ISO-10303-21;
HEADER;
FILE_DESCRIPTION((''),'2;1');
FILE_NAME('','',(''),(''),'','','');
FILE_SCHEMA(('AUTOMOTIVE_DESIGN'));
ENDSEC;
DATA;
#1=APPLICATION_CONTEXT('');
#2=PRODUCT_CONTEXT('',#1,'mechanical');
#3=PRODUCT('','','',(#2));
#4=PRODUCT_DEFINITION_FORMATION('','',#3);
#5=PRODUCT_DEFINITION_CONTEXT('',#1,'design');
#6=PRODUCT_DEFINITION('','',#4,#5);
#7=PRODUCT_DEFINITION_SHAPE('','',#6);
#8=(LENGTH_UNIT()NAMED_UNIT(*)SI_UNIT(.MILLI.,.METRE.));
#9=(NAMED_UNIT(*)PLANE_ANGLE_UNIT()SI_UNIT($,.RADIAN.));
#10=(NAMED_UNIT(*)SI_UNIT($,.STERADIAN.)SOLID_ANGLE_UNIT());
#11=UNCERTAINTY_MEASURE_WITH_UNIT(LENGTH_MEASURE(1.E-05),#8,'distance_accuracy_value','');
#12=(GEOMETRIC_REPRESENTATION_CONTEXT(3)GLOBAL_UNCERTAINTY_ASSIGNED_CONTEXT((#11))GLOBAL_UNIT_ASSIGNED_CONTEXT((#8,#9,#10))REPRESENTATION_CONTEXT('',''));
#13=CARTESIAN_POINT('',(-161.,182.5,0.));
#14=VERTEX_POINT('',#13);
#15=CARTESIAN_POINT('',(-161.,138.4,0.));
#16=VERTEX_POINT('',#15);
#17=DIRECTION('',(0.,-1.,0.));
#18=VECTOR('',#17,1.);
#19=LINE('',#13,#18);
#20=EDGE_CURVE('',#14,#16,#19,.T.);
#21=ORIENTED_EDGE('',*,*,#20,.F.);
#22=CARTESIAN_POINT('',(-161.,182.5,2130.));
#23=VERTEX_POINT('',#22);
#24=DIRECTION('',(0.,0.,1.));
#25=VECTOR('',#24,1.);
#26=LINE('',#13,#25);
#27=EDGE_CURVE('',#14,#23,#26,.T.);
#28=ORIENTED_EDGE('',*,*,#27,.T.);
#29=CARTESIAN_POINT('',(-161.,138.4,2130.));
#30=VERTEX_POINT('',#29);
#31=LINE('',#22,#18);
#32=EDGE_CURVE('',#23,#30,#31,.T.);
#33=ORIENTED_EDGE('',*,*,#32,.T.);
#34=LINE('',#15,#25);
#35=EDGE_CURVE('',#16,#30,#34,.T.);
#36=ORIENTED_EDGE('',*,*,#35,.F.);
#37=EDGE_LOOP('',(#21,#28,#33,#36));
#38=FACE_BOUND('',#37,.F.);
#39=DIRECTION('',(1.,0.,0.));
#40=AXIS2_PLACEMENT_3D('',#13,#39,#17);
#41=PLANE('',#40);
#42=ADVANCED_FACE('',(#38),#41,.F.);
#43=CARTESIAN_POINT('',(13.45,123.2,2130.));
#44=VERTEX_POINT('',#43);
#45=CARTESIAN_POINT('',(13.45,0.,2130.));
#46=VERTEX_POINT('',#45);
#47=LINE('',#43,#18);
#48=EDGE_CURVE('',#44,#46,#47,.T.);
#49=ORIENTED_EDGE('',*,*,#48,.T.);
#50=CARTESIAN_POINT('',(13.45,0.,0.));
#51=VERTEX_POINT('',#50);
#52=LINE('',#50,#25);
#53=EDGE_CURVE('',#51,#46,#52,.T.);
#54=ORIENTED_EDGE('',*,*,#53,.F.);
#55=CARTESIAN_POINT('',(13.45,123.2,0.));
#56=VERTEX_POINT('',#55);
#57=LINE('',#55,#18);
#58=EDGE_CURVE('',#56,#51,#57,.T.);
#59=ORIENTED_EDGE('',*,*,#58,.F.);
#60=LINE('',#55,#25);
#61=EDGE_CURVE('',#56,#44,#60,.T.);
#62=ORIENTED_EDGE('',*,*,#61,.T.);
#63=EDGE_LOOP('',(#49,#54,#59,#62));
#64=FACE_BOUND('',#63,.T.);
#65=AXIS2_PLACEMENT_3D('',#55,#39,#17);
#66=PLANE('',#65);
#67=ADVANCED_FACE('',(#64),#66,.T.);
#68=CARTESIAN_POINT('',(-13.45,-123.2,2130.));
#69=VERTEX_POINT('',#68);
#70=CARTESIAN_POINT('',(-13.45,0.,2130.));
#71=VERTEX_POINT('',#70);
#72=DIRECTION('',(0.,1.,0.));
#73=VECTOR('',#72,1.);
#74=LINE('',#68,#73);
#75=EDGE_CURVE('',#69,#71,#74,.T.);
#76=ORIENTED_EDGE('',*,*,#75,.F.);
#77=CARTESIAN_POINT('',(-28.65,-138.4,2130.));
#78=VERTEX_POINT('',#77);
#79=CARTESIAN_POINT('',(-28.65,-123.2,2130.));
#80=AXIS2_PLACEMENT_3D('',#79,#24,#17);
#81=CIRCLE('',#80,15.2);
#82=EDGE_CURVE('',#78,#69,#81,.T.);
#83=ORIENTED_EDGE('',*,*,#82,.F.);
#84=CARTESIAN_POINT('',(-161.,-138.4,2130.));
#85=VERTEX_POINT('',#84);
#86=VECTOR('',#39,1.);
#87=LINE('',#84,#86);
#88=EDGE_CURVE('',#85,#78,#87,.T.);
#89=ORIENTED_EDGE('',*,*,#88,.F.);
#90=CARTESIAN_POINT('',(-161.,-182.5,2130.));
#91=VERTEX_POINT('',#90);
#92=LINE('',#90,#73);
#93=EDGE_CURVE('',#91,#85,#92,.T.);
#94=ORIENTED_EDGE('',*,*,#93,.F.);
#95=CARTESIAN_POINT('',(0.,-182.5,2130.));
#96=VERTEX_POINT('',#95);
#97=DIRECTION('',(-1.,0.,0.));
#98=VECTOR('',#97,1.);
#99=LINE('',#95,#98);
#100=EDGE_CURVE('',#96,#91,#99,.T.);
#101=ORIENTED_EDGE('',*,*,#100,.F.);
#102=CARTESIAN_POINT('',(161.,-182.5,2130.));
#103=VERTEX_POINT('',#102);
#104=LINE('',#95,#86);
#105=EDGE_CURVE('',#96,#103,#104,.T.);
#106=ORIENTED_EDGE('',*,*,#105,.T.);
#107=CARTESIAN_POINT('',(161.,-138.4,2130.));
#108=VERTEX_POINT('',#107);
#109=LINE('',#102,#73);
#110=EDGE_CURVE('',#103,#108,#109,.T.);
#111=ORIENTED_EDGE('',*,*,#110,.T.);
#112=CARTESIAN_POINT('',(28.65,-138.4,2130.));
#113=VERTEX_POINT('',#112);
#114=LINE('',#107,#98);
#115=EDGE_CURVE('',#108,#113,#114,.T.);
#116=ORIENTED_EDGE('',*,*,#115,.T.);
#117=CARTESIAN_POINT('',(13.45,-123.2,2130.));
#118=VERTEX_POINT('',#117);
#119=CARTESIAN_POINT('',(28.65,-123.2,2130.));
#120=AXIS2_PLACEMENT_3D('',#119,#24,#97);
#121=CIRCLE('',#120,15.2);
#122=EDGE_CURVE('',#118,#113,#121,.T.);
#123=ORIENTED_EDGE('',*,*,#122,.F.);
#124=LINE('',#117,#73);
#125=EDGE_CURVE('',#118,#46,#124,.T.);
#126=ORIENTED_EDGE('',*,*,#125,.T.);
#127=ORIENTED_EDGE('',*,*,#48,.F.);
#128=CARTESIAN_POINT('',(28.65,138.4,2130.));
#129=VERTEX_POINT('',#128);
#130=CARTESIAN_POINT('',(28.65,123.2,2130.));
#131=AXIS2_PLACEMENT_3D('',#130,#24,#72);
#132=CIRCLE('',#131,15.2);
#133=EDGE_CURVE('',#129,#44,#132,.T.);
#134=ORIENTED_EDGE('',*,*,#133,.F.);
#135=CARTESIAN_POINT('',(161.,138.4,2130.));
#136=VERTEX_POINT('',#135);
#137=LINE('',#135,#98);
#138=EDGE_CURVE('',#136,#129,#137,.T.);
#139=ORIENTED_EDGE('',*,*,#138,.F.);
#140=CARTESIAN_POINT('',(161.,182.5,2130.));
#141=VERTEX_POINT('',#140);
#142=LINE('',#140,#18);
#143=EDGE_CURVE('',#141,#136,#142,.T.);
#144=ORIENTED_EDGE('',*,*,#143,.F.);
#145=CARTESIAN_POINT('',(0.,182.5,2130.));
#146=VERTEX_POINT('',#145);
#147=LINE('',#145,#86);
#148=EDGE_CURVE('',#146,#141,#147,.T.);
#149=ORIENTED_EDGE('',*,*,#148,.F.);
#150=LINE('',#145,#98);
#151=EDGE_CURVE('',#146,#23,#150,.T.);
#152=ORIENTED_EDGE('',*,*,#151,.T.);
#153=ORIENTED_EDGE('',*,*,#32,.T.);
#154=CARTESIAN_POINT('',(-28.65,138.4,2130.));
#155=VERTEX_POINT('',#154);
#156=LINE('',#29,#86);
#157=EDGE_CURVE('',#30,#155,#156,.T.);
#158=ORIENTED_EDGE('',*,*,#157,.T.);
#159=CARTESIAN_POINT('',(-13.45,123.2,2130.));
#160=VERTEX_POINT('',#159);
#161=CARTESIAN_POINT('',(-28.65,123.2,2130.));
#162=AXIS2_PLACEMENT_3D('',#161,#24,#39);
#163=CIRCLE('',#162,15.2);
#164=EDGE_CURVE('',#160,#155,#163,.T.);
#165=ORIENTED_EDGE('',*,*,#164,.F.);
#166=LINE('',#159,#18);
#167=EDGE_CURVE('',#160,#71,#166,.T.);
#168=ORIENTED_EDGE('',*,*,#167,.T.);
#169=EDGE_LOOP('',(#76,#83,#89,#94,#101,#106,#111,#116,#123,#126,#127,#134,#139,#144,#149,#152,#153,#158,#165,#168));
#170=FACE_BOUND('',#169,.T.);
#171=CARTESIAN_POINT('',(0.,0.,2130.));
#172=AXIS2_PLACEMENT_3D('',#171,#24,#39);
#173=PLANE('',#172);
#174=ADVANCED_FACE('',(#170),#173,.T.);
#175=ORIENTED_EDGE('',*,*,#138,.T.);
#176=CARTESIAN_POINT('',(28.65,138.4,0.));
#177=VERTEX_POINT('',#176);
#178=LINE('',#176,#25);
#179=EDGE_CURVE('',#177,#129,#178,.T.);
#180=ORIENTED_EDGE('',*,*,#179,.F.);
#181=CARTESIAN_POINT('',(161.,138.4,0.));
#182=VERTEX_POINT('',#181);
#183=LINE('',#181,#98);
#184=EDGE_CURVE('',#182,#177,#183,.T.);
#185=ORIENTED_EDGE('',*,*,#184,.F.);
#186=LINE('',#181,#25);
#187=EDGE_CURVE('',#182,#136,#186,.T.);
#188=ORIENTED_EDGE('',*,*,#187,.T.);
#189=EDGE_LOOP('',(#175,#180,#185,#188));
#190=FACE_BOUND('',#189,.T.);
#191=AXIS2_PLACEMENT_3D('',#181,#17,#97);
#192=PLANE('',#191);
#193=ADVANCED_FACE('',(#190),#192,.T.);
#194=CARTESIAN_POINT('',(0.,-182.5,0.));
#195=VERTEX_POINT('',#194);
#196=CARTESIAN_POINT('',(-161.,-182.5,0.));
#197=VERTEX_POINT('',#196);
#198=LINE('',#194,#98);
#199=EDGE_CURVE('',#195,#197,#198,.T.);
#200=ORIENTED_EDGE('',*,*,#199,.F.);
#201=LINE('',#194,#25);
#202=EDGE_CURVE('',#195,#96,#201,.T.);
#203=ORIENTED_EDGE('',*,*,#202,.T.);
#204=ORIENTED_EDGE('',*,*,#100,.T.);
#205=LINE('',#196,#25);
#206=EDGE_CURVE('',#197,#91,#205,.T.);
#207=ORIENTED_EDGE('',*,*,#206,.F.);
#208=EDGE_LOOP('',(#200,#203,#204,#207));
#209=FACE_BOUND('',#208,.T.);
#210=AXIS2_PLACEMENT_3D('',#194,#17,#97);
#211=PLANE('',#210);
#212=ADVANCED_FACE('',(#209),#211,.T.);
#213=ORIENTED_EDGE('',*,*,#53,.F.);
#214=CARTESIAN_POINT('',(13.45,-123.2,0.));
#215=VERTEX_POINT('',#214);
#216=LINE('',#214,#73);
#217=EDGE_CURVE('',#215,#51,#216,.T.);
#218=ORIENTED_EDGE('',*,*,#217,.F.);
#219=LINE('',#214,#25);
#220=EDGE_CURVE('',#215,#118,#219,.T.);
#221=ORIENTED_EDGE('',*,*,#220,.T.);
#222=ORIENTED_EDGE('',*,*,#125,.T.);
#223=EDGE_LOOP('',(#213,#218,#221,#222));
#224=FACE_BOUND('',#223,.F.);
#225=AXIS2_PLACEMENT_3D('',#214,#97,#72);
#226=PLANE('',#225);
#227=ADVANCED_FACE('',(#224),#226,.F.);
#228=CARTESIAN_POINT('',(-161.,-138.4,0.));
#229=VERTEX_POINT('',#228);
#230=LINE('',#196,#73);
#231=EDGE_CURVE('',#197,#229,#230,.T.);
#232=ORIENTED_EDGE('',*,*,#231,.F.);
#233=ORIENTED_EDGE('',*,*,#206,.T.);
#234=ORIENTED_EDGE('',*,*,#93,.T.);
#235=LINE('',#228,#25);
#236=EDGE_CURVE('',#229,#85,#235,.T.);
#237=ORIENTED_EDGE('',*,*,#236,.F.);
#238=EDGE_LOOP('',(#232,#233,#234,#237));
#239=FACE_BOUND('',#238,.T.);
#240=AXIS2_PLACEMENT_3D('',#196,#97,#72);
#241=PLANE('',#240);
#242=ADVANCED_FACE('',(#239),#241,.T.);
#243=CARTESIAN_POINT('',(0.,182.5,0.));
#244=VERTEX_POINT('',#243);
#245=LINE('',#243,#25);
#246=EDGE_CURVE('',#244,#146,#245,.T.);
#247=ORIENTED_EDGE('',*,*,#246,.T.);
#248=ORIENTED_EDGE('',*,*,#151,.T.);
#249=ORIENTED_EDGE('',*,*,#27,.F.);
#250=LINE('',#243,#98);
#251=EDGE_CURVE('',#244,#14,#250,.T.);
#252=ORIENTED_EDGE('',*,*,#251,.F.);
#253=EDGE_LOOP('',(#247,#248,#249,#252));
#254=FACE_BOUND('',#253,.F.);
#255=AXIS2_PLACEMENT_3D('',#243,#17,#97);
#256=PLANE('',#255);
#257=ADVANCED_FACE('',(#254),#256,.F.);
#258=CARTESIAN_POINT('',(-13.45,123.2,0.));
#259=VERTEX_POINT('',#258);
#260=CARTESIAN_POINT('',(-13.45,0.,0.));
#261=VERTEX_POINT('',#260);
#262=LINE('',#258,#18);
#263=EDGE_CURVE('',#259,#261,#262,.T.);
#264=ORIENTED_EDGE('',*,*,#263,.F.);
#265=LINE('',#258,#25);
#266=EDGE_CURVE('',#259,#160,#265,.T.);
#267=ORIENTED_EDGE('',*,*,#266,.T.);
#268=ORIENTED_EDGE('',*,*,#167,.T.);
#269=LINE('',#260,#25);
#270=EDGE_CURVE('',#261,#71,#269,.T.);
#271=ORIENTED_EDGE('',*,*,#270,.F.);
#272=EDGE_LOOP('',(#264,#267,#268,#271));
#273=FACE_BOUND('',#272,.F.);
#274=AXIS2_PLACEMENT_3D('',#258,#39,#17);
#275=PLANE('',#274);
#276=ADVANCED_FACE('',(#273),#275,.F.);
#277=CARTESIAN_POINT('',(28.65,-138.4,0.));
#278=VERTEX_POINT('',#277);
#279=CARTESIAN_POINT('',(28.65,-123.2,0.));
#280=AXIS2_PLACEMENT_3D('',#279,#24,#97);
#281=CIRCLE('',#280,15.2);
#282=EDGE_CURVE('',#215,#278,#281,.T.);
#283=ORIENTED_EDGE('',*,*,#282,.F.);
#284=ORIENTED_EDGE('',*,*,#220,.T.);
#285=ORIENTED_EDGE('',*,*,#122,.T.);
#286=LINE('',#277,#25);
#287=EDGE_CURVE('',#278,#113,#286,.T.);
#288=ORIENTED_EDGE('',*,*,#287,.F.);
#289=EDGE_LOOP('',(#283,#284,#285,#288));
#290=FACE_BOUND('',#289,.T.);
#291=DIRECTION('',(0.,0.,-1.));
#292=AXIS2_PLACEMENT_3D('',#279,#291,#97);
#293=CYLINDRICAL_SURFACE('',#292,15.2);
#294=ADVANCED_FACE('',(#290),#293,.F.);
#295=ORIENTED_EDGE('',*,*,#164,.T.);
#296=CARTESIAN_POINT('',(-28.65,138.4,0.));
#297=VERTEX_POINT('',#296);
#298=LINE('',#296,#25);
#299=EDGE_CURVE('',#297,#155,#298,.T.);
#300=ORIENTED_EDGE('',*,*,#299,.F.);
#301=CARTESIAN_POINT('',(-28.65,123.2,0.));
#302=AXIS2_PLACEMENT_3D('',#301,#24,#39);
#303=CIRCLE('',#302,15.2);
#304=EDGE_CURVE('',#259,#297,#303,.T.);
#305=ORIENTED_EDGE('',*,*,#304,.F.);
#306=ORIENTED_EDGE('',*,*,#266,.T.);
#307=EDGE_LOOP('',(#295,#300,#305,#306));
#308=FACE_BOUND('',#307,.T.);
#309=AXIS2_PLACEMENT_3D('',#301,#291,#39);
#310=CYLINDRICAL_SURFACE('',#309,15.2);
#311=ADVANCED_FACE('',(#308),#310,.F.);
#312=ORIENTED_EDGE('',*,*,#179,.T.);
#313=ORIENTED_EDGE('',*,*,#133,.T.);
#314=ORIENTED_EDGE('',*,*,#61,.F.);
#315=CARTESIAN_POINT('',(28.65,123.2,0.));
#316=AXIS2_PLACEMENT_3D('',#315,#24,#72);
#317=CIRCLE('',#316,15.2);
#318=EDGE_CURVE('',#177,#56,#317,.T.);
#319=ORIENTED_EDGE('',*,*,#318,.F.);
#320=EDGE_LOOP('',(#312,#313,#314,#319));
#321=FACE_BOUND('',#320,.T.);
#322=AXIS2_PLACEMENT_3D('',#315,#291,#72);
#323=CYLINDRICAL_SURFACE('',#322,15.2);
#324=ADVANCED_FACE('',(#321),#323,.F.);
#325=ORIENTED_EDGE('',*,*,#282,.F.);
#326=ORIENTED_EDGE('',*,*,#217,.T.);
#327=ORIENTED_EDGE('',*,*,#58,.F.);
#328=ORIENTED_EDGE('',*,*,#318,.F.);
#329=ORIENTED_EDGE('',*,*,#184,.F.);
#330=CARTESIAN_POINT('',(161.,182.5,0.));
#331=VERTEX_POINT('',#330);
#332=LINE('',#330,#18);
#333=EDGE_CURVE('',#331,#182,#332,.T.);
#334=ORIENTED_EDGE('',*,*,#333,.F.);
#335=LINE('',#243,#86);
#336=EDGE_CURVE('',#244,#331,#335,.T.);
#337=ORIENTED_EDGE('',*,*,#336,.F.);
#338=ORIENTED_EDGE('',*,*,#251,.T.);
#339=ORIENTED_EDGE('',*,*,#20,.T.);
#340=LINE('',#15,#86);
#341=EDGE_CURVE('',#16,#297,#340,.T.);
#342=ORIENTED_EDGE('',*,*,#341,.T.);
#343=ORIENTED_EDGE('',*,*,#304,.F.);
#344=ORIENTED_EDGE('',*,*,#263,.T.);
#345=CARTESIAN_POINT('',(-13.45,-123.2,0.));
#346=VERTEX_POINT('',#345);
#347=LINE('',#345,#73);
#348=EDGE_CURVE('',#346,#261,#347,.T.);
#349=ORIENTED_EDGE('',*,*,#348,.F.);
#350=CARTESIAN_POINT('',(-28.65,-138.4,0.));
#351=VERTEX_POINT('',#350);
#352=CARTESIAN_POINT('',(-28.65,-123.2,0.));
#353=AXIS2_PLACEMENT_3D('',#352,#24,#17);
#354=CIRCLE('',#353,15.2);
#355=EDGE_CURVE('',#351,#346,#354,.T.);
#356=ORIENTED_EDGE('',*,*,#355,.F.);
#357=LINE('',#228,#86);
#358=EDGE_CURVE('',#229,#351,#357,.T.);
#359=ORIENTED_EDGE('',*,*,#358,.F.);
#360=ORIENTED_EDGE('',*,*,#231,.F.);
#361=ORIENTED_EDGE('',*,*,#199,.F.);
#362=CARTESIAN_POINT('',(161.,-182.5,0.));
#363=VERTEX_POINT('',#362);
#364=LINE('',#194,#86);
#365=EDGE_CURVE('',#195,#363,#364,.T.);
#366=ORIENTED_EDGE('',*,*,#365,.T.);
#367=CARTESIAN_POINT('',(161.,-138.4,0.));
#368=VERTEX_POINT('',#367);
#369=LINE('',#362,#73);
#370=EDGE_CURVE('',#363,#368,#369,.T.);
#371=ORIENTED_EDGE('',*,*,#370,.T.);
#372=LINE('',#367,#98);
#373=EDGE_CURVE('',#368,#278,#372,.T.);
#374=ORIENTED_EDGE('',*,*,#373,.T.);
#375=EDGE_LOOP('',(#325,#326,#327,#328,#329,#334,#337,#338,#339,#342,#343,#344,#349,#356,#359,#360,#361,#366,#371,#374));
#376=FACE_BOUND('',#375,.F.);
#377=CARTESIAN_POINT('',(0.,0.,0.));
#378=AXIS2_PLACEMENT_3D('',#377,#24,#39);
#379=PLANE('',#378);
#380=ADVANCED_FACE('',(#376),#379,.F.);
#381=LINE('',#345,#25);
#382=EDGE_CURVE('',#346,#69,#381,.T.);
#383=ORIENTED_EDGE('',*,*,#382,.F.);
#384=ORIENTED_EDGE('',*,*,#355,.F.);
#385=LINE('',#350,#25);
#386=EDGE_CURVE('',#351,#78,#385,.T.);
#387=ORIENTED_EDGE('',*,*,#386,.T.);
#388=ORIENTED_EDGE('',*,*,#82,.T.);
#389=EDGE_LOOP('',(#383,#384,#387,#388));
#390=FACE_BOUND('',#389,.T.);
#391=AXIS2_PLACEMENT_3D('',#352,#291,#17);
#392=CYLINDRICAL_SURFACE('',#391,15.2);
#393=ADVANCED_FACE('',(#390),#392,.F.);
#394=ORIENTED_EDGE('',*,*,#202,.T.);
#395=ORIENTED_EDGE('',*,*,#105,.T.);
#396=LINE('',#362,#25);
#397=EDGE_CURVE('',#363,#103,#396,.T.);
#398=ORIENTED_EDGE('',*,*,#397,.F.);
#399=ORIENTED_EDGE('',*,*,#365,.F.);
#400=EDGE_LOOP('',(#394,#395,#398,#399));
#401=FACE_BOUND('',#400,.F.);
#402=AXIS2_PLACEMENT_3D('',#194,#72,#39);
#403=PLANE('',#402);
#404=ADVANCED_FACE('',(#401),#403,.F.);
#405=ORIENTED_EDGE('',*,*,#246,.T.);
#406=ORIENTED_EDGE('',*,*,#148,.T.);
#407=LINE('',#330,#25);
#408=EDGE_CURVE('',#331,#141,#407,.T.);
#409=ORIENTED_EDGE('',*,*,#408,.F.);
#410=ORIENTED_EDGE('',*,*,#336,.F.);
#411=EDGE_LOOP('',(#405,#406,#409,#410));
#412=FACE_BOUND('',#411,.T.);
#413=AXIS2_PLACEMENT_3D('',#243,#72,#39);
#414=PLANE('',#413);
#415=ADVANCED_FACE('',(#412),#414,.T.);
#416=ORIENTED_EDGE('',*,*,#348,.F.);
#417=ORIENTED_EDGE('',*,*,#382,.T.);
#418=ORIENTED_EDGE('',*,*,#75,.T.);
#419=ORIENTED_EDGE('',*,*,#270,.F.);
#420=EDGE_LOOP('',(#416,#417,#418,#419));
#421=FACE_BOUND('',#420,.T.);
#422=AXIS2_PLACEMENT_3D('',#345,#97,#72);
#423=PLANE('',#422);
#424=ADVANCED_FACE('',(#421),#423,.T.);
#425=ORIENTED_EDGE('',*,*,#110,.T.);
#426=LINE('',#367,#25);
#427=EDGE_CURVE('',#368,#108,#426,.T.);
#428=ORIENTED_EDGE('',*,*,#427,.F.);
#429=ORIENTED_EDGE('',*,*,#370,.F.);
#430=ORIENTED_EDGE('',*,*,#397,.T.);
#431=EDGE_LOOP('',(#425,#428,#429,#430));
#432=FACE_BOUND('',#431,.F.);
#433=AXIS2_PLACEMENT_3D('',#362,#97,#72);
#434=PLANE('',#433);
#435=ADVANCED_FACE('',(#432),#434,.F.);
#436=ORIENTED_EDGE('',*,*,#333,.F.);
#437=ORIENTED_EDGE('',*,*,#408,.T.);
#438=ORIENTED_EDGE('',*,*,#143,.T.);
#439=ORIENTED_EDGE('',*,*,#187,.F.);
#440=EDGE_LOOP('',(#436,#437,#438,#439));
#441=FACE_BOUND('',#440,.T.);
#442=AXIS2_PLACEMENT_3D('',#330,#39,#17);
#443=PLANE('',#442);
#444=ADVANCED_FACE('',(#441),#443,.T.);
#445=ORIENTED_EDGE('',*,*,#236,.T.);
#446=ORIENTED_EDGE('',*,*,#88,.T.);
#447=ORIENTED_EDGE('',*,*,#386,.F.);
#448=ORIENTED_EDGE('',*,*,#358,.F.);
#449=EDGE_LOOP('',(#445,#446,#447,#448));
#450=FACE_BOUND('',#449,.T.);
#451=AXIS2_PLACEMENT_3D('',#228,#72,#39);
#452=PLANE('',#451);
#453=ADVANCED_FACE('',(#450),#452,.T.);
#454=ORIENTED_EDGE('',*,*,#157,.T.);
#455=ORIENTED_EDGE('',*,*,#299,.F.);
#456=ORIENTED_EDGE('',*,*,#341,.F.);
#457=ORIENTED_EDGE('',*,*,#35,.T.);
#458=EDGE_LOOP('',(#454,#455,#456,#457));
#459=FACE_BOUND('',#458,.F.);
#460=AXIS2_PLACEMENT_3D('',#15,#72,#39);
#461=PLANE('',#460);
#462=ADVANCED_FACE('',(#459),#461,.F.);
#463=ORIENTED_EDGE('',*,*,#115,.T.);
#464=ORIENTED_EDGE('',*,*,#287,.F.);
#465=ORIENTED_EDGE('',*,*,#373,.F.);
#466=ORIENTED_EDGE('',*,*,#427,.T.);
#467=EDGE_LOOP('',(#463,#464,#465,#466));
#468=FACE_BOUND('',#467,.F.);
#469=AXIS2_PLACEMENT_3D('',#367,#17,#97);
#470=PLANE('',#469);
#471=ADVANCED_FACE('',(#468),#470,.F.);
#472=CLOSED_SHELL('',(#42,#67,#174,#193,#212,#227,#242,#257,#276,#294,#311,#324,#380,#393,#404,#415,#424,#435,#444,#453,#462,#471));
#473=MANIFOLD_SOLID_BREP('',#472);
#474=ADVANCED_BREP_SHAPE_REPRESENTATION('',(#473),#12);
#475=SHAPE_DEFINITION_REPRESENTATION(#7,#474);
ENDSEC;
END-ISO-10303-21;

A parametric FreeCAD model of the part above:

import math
import FreeCAD as App
import Part
import Sketcher
from FreeCAD import Vector

doc = App.newDocument("Part")
body = doc.addObject("PartDesign::Body", "Body")

sketch1 = body.newObject("Sketcher::SketchObject", "Sketch")
sketch1.AttachmentSupport = (doc.getObject("XY_Plane"), [""])
sketch1.MapMode = "FlatFace"
sketch1.addGeometry([
    Part.LineSegment(Vector(-161, -138.4, 0), Vector(-161, -182.5, 0)),
    Part.LineSegment(Vector(-161, -182.5, 0), Vector(161, -182.5, 0)),
    Part.LineSegment(Vector(161, -182.5, 0), Vector(161, -138.4, 0)),
    Part.LineSegment(Vector(161, -138.4, 0), Vector(28.65, -138.4, 0)),
    Part.ArcOfCircle(Part.Circle(Vector(28.65, -123.2, 0), Vector(0, 0, 1), 15.2), math.radians(180), math.radians(270)),
    Part.LineSegment(Vector(13.45, -123.2, 0), Vector(13.45, 123.2, 0)),
    Part.ArcOfCircle(Part.Circle(Vector(28.65, 123.2, 0), Vector(0, 0, 1), 15.2), math.radians(90), math.radians(180)),
    Part.LineSegment(Vector(28.65, 138.4, 0), Vector(161, 138.4, 0)),
    Part.LineSegment(Vector(161, 138.4, 0), Vector(161, 182.5, 0)),
    Part.LineSegment(Vector(161, 182.5, 0), Vector(-161, 182.5, 0)),
    Part.LineSegment(Vector(-161, 182.5, 0), Vector(-161, 138.4, 0)),
    Part.LineSegment(Vector(-161, 138.4, 0), Vector(-28.65, 138.4, 0)),
    Part.ArcOfCircle(Part.Circle(Vector(-28.65, 123.2, 0), Vector(0, 0, 1), 15.2), math.radians(0), math.radians(90)),
    Part.LineSegment(Vector(-13.45, 123.2, 0), Vector(-13.45, -123.2, 0)),
    Part.ArcOfCircle(Part.Circle(Vector(-28.65, -123.2, 0), Vector(0, 0, 1), 15.2), math.radians(-90), math.radians(0)),
    Part.LineSegment(Vector(-28.65, -138.4, 0), Vector(-161, -138.4, 0)),
], False)
sketch1.addConstraint([
    Sketcher.Constraint("Coincident", 0, 2, 1, 1),
    Sketcher.Constraint("Coincident", 1, 2, 2, 1),
    Sketcher.Constraint("Coincident", 2, 2, 3, 1),
    Sketcher.Constraint("Tangent", 3, 2, 4, 2),
    Sketcher.Constraint("Tangent", 4, 1, 5, 1),
    Sketcher.Constraint("Tangent", 5, 2, 6, 2),
    Sketcher.Constraint("Tangent", 6, 1, 7, 1),
    Sketcher.Constraint("Coincident", 7, 2, 8, 1),
    Sketcher.Constraint("Coincident", 8, 2, 9, 1),
    Sketcher.Constraint("Coincident", 9, 2, 10, 1),
    Sketcher.Constraint("Coincident", 10, 2, 11, 1),
    Sketcher.Constraint("Tangent", 11, 2, 12, 2),
    Sketcher.Constraint("Tangent", 12, 1, 13, 1),
    Sketcher.Constraint("Tangent", 13, 2, 14, 2),
    Sketcher.Constraint("Tangent", 14, 1, 15, 1),
    Sketcher.Constraint("Coincident", 15, 2, 0, 1),
    Sketcher.Constraint("Vertical", 0),
    Sketcher.Constraint("Horizontal", 1),
    Sketcher.Constraint("Vertical", 2),
    Sketcher.Constraint("Horizontal", 3),
    Sketcher.Constraint("Vertical", 5),
    Sketcher.Constraint("Horizontal", 7),
    Sketcher.Constraint("Vertical", 8),
    Sketcher.Constraint("Horizontal", 9),
    Sketcher.Constraint("Vertical", 10),
    Sketcher.Constraint("Horizontal", 11),
    Sketcher.Constraint("Vertical", 13),
    Sketcher.Constraint("Horizontal", 15),
    Sketcher.Constraint("Equal", 4, 6),
    Sketcher.Constraint("Equal", 6, 12),
    Sketcher.Constraint("Equal", 12, 14),
    Sketcher.Constraint("Symmetric", 4, 3, 12, 3, -1, 1),
    Sketcher.Constraint("Symmetric", 0, 2, 8, 2, -1, 1),
    Sketcher.Constraint("Symmetric", 7, 2, 10, 2, -2),
    Sketcher.Constraint("Symmetric", 2, 2, 15, 2, -2),
    Sketcher.Constraint("Radius", 4, 15.2),
    Sketcher.Constraint("DistanceY", 0, 2, 0, 1, 44.1),
    Sketcher.Constraint("DistanceX", 0, 2, -1, 1, 161.0),
    Sketcher.Constraint("DistanceY", 0, 2, -1, 1, 182.5),
    Sketcher.Constraint("DistanceX", -1, 1, 4, 1, 13.45),
])
pad1 = body.newObject("PartDesign::Pad", "Pad")
pad1.Profile = sketch1
pad1.Length = 2130

doc.recompute()
